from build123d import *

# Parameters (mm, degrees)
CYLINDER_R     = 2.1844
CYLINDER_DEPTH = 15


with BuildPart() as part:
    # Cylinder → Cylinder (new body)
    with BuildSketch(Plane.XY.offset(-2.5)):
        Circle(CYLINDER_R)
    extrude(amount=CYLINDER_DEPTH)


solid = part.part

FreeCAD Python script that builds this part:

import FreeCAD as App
import Part
import Sketcher
Q = App.Units.Quantity

doc = App.newDocument("Part")
body = doc.addObject("PartDesign::Body", "Body")

# Sketch on XY plane
sketch1 = doc.addObject("Sketcher::SketchObject", "Sketch")
body.addObject(sketch1)
sketch1.AttachmentSupport = (doc.XY_Plane, [""])
sketch1.MapMode = "FlatFace"
sketch1.AttachmentOffset = App.Placement(App.Vector(0, 0, -2.5), App.Rotation())
sketch1.addGeometry(Part.Circle(App.Vector(0, 0, 0), App.Vector(0, 0, 1), 2.2), False)
sketch1.addConstraint([
    Sketcher.Constraint("Coincident", 0, 3, -1, 1),
    Sketcher.Constraint("Diameter", 0, Q("4.3688 mm")),
])
pad1 = doc.addObject("PartDesign::Pad", "Pad")
body.addObject(pad1)
pad1.Profile = sketch1
pad1.Length = 15

doc.recompute()
